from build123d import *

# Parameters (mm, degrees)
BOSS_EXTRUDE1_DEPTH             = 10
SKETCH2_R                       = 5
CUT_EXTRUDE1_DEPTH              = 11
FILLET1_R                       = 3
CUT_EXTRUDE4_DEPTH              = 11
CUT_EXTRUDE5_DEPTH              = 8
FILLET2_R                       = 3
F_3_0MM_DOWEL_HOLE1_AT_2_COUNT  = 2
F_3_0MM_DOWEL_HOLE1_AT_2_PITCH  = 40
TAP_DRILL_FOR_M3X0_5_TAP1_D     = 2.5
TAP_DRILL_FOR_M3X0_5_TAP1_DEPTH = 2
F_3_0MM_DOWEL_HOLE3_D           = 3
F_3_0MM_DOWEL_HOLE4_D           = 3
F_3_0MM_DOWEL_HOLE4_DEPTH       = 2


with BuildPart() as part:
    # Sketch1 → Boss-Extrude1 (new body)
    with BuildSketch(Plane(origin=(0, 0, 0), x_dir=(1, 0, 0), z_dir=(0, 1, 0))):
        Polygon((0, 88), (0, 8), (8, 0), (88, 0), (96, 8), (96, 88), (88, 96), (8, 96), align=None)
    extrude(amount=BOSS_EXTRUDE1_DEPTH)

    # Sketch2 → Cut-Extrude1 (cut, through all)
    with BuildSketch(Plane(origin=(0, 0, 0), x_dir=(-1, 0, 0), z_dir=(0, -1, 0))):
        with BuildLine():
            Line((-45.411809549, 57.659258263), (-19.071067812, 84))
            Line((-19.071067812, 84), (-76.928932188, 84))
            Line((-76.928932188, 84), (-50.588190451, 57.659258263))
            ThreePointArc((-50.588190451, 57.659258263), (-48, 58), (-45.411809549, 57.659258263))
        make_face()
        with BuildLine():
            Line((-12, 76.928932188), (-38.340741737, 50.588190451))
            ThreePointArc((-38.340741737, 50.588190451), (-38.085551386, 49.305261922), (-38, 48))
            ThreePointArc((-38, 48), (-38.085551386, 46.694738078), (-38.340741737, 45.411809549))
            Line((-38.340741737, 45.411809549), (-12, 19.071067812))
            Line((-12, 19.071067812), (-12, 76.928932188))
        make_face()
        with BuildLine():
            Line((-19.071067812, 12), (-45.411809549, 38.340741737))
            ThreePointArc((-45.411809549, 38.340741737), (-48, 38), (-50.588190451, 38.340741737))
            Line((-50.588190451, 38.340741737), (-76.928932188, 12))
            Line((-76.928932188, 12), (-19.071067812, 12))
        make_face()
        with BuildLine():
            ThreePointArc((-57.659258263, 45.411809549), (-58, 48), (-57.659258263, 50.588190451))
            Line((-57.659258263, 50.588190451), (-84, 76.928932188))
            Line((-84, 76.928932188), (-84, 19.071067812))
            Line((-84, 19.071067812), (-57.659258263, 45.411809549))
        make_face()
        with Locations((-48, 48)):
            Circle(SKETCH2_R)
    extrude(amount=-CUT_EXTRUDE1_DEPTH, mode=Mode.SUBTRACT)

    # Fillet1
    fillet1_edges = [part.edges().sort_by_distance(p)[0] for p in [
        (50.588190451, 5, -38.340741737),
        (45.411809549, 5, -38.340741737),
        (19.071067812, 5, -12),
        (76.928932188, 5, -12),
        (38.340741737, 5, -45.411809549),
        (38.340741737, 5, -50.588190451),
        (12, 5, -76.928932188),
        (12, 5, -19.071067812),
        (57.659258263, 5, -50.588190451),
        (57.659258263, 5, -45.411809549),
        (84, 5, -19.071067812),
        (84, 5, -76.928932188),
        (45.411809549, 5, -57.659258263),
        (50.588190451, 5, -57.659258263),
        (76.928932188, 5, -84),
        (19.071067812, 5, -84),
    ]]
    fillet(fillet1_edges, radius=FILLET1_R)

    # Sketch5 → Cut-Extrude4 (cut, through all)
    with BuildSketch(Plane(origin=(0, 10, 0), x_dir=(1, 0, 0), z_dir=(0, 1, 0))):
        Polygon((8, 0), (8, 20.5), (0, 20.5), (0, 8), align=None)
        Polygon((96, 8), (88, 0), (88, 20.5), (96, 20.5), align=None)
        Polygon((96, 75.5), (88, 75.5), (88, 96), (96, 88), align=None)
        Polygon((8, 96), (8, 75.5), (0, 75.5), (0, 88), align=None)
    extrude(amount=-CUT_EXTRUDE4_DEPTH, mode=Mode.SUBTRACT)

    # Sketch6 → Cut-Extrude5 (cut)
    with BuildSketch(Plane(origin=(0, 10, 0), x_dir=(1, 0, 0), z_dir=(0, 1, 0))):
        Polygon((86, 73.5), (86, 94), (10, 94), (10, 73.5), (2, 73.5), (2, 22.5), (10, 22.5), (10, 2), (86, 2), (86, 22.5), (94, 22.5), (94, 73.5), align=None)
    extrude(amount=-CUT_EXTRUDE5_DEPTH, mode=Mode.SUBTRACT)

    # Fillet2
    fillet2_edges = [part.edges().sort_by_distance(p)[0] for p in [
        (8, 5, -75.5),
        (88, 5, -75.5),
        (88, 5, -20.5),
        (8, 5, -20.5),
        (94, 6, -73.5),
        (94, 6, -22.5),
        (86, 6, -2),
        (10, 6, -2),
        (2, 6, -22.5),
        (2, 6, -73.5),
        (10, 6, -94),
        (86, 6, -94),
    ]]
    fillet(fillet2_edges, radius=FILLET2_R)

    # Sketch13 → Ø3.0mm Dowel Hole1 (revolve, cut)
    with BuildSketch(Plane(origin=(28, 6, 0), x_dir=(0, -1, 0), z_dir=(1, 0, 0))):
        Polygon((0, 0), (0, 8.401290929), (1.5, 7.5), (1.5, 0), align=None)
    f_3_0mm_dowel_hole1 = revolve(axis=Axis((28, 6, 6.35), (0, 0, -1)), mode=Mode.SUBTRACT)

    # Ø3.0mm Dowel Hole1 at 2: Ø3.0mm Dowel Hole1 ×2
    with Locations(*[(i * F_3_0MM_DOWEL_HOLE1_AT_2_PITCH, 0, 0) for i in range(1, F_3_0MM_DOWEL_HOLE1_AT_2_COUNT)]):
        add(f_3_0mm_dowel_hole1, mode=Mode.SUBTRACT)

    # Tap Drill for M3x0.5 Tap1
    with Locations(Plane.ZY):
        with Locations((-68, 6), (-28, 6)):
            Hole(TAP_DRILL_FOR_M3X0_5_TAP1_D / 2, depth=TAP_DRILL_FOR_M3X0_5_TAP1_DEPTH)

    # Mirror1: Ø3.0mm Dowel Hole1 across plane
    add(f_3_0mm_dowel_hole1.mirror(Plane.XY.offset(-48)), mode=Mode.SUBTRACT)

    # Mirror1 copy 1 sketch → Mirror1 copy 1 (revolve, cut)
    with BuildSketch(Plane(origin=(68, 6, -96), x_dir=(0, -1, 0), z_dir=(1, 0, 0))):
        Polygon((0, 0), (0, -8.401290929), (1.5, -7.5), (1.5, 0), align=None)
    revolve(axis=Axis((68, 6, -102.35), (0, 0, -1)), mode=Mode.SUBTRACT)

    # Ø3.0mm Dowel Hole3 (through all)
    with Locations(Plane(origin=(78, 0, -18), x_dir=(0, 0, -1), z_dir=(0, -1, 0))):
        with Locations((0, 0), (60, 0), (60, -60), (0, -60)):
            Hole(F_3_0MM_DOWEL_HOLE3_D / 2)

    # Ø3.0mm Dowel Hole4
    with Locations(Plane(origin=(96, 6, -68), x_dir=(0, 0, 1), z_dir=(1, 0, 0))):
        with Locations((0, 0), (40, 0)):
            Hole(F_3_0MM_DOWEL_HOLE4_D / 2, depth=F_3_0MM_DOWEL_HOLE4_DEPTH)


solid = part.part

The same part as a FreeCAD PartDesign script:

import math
import FreeCAD as App
import Part
import Sketcher
Q = App.Units.Quantity


def edges_at(feature, points):
    """Names of the edges that pass closest to the given points."""
    edges = feature.Shape.Edges
    near = lambda p: min(range(len(edges)), key=lambda i: edges[i].distToShape(Part.Vertex(*p))[0])
    return sorted({f"Edge{near(p) + 1}" for p in points})


def add_polygon(sketch, points):
    """Adds a closed chain of lines whose ends are joined by coincident constraints."""
    first, n = sketch.GeometryCount, len(points)
    for a, b in zip(points, points[1:] + points[:1]):
        sketch.addGeometry(Part.LineSegment(App.Vector(*a, 0), App.Vector(*b, 0)), False)
    for i in range(n):
        sketch.addConstraint(Sketcher.Constraint("Coincident", first + i, 2, first + (i + 1) % n, 1))

doc = App.newDocument("Part")
body = doc.addObject("PartDesign::Body", "Body")

sketch1 = body.newObject("Sketcher::SketchObject", "Sketch")
sketch1.AttachmentSupport = (doc.getObject("XZ_Plane"), [""])
sketch1.MapMode = "FlatFace"
add_polygon(sketch1, [(0, -88), (0, -8), (8, 0), (88, 0), (96, -8), (96, -88), (88, -96), (8, -96)])
sketch1.addConstraint([
    Sketcher.Constraint("Vertical", 0),
    Sketcher.Constraint("Horizontal", 2),
    Sketcher.Constraint("Vertical", 4),
    Sketcher.Constraint("Horizontal", 6),
    Sketcher.Constraint("PointOnObject", 0, 2, -2),
    Sketcher.Constraint("PointOnObject", 1, 2, -1),
    Sketcher.Constraint("Perpendicular", 1, 3),
    Sketcher.Constraint("Perpendicular", 3, 5),
    Sketcher.Constraint("Perpendicular", 5, 7),
    Sketcher.Constraint("Horizontal", 0, 2, 3, 2),
    Sketcher.Constraint("Horizontal", 4, 2, 7, 2),
    Sketcher.Constraint("Vertical", 2, 2, 5, 2),
    Sketcher.Constraint("Vertical", 1, 2, 6, 2),
    Sketcher.Constraint("Equal", 6, 0),
    Sketcher.Constraint("DistanceX", 2, 1, 2, 2, Q("80 mm")),
    Sketcher.Constraint("DistanceY", 0, 2, -1, 1, Q("8 mm")),
])
pad1 = body.newObject("PartDesign::Pad", "Pad")
pad1.Profile = sketch1
pad1.Length = 10
pad1.Reversed = True

sketch2 = body.newObject("Sketcher::SketchObject", "Sketch001")
sketch2.AttachmentSupport = (doc.getObject("XZ_Plane"), [""])
sketch2.MapMode = "FlatFace"
sketch2.addGeometry([
    Part.LineSegment(App.Vector(45.4, -57.7, 0), App.Vector(19.1, -84, 0)),
    Part.LineSegment(App.Vector(19.1, -84, 0), App.Vector(76.9, -84, 0)),
    Part.LineSegment(App.Vector(76.9, -84, 0), App.Vector(50.6, -57.7, 0)),
    Part.ArcOfCircle(Part.Circle(App.Vector(48, -48, 0), App.Vector(0, 0, 1), 10), math.radians(-105), math.radians(-75)),
    Part.LineSegment(App.Vector(12, -76.9, 0), App.Vector(38.3, -50.6, 0)),
    Part.ArcOfCircle(Part.Circle(App.Vector(48, -48, 0), App.Vector(0, 0, 1), 10), math.radians(180), math.radians(195)),
    Part.ArcOfCircle(Part.Circle(App.Vector(48, -48, 0), App.Vector(0, 0, 1), 10), math.radians(165), math.radians(180)),
    Part.LineSegment(App.Vector(38.3, -45.4, 0), App.Vector(12, -19.1, 0)),
    Part.LineSegment(App.Vector(12, -19.1, 0), App.Vector(12, -76.9, 0)),
    Part.LineSegment(App.Vector(19.1, -12, 0), App.Vector(45.4, -38.3, 0)),
    Part.ArcOfCircle(Part.Circle(App.Vector(48, -48, 0), App.Vector(0, 0, 1), 10), math.radians(75), math.radians(105)),
    Part.LineSegment(App.Vector(50.6, -38.3, 0), App.Vector(76.9, -12, 0)),
    Part.LineSegment(App.Vector(76.9, -12, 0), App.Vector(19.1, -12, 0)),
    Part.ArcOfCircle(Part.Circle(App.Vector(48, -48, 0), App.Vector(0, 0, 1), 10), math.radians(-15), math.radians(15)),
    Part.LineSegment(App.Vector(57.7, -50.6, 0), App.Vector(84, -76.9, 0)),
    Part.LineSegment(App.Vector(84, -76.9, 0), App.Vector(84, -19.1, 0)),
    Part.LineSegment(App.Vector(84, -19.1, 0), App.Vector(57.7, -45.4, 0)),
    Part.Circle(App.Vector(48, -48, 0), App.Vector(0, 0, 1), 5),
], False)
sketch2.addConstraint([
    Sketcher.Constraint("Coincident", 0, 2, 1, 1),
    Sketcher.Constraint("Coincident", 1, 2, 2, 1),
    Sketcher.Constraint("Coincident", 2, 2, 3, 2),
    Sketcher.Constraint("Coincident", 3, 1, 0, 1),
    Sketcher.Constraint("Coincident", 4, 2, 5, 2),
    Sketcher.Constraint("Tangent", 5, 1, 6, 2),
    Sketcher.Constraint("Coincident", 6, 1, 7, 1),
    Sketcher.Constraint("Coincident", 7, 2, 8, 1),
    Sketcher.Constraint("Coincident", 8, 2, 4, 1),
    Sketcher.Constraint("Coincident", 9, 2, 10, 2),
    Sketcher.Constraint("Coincident", 10, 1, 11, 1),
    Sketcher.Constraint("Coincident", 11, 2, 12, 1),
    Sketcher.Constraint("Coincident", 12, 2, 9, 1),
    Sketcher.Constraint("Coincident", 13, 1, 14, 1),
    Sketcher.Constraint("Coincident", 14, 2, 15, 1),
    Sketcher.Constraint("Coincident", 15, 2, 16, 1),
    Sketcher.Constraint("Coincident", 16, 2, 13, 2),
    Sketcher.Constraint("Horizontal", 1),
    Sketcher.Constraint("Vertical", 8),
    Sketcher.Constraint("Horizontal", 12),
    Sketcher.Constraint("Vertical", 15),
    Sketcher.Constraint("Coincident", 5, 3, 3, 3),
    Sketcher.Constraint("Coincident", 10, 3, 3, 3),
    Sketcher.Constraint("Coincident", 13, 3, 3, 3),
    Sketcher.Constraint("Coincident", 17, 3, 3, 3),
    Sketcher.Constraint("Equal", 3, 5),
    Sketcher.Constraint("Equal", 5, 6),
    Sketcher.Constraint("Equal", 6, 10),
    Sketcher.Constraint("Equal", 10, 13),
    Sketcher.Constraint("Perpendicular", 0, 2),
    Sketcher.Constraint("Perpendicular", 2, 4),
    Sketcher.Constraint("Perpendicular", 4, 7),
    Sketcher.Constraint("Parallel", 7, 9),
    Sketcher.Constraint("Perpendicular", 9, 11),
    Sketcher.Constraint("Perpendicular", 11, 14),
    Sketcher.Constraint("Perpendicular", 14, 16),
    Sketcher.Constraint("Horizontal", 2, 2, 3, 1),
    Sketcher.Constraint("Horizontal", 17, 3, 5, 1),
    Sketcher.Constraint("Horizontal", 9, 2, 10, 1),
    Sketcher.Constraint("Horizontal", 4, 2, 13, 1),
    Sketcher.Constraint("Horizontal", 8, 2, 14, 2),
    Sketcher.Constraint("Horizontal", 7, 2, 15, 2),
    Sketcher.Constraint("Horizontal", 6, 1, 16, 2),
    Sketcher.Constraint("Vertical", 4, 2, 6, 1),
    Sketcher.Constraint("Vertical", 3, 1, 9, 2),
    Sketcher.Constraint("Vertical", 1, 2, 11, 2),
    Sketcher.Constraint("Equal", 12, 8),
    Sketcher.Constraint("Equal", 2, 4),
    Sketcher.Constraint("Diameter", 17, Q("10 mm")),
    Sketcher.Constraint("Radius", 3, Q("10 mm")),
    Sketcher.Constraint("DistanceX", -1, 1, 3, 3, Q("48 mm")),
    Sketcher.Constraint("DistanceY", 3, 3, -1, 1, Q("48 mm")),
    Sketcher.Constraint("DistanceY", 0, 2, -1, 1, Q("84 mm")),
    Sketcher.Constraint("DistanceX", 1, 1, 1, 2, Q("57.857864 mm")),
])
pocket1 = body.newObject("PartDesign::Pocket", "Pocket")
pocket1.Profile = sketch2
pocket1.Type = "ThroughAll"
doc.recompute()

fillet = body.newObject("PartDesign::Fillet", "Fillet")
fillet.Base = (pocket1, edges_at(pocket1, [
    (50.588, 5, -38.341),
    (45.412, 5, -38.341),
    (19.071, 5, -12),
    (76.929, 5, -12),
    (38.341, 5, -45.412),
    (38.341, 5, -50.588),
    (12, 5, -76.929),
    (12, 5, -19.071),
    (57.659, 5, -50.588),
    (57.659, 5, -45.412),
    (84, 5, -19.071),
    (84, 5, -76.929),
    (45.412, 5, -57.659),
    (50.588, 5, -57.659),
    (76.929, 5, -84),
    (19.071, 5, -84),
]))
fillet.Radius = 3

sketch3 = body.newObject("Sketcher::SketchObject", "Sketch002")
sketch3.AttachmentSupport = (doc.getObject("XZ_Plane"), [""])
sketch3.MapMode = "FlatFace"
sketch3.AttachmentOffset = App.Placement(App.Vector(0, 0, -10), App.Rotation())
add_polygon(sketch3, [(8, 0), (8, -20), (0, -20), (0, -8)])
add_polygon(sketch3, [(88, 0), (96, -8), (96, -20), (88, -20)])
add_polygon(sketch3, [(88, -76), (96, -76), (96, -88), (88, -96)])
add_polygon(sketch3, [(8, -76), (8, -96), (0, -88), (0, -76)])
sketch3.addConstraint([
    Sketcher.Constraint("Vertical", 0),
    Sketcher.Constraint("Horizontal", 1),
    Sketcher.Constraint("Vertical", 2),
    Sketcher.Constraint("Vertical", 5),
    Sketcher.Constraint("Horizontal", 6),
    Sketcher.Constraint("Vertical", 7),
    Sketcher.Constraint("Horizontal", 8),
    Sketcher.Constraint("Vertical", 9),
    Sketcher.Constraint("Vertical", 11),
    Sketcher.Constraint("Vertical", 12),
    Sketcher.Constraint("Vertical", 14),
    Sketcher.Constraint("Horizontal", 15),
    Sketcher.Constraint("PointOnObject", 1, 2, -2),
    Sketcher.Constraint("PointOnObject", 3, 2, -1),
    Sketcher.Constraint("PointOnObject", 7, 2, -1),
    Sketcher.Constraint("PointOnObject", 13, 2, -2),
    Sketcher.Constraint("Perpendicular", 3, 4),
    Sketcher.Constraint("Perpendicular", 4, 10),
    Sketcher.Constraint("Perpendicular", 10, 13),
    Sketcher.Constraint("Horizontal", 2, 2, 4, 2),
    Sketcher.Constraint("Horizontal", 1, 2, 5, 2),
    Sketcher.Constraint("Horizontal", 10, 2, 12, 2),
    Sketcher.Constraint("Horizontal", 9, 2, 13, 2),
    Sketcher.Constraint("Horizontal", 11, 2, 14, 2),
    Sketcher.Constraint("Vertical", 5, 2, 8, 2),
    Sketcher.Constraint("Vertical", 7, 2, 10, 2),
    Sketcher.Constraint("Vertical", 3, 2, 12, 2),
    Sketcher.Constraint("Equal", 5, 9),
    Sketcher.Constraint("DistanceX", 1, 2, 1, 1, Q("8 mm")),
    Sketcher.Constraint("DistanceY", 0, 2, 0, 1, Q("20.5 mm")),
    Sketcher.Constraint("DistanceX", -1, 1, 4, 2, Q("96 mm")),
    Sketcher.Constraint("DistanceY", 9, 2, -1, 1, Q("88 mm")),
])
pocket2 = body.newObject("PartDesign::Pocket", "Pocket001")
pocket2.Profile = sketch3
pocket2.Type = "ThroughAll"
pocket2.Reversed = True

sketch4 = body.newObject("Sketcher::SketchObject", "Sketch003")
sketch4.AttachmentSupport = (doc.getObject("XZ_Plane"), [""])
sketch4.MapMode = "FlatFace"
sketch4.AttachmentOffset = App.Placement(App.Vector(0, 0, -10), App.Rotation())
add_polygon(sketch4, [(86, -74), (86, -94), (10, -94), (10, -74), (2, -74), (2, -22), (10, -22), (10, -2), (86, -2), (86, -22), (94, -22), (94, -74)])
sketch4.addConstraint([
    Sketcher.Constraint("Vertical", 0),
    Sketcher.Constraint("Horizontal", 1),
    Sketcher.Constraint("Vertical", 2),
    Sketcher.Constraint("Horizontal", 3),
    Sketcher.Constraint("Vertical", 4),
    Sketcher.Constraint("Horizontal", 5),
    Sketcher.Constraint("Vertical", 6),
    Sketcher.Constraint("Horizontal", 7),
    Sketcher.Constraint("Vertical", 8),
    Sketcher.Constraint("Horizontal", 9),
    Sketcher.Constraint("Vertical", 10),
    Sketcher.Constraint("Horizontal", 11),
    Sketcher.Constraint("Horizontal", 5, 2, 8, 2),
    Sketcher.Constraint("Horizontal", 3, 2, 10, 2),
    Sketcher.Constraint("Vertical", 2, 2, 5, 2),
    Sketcher.Constraint("Vertical", 0, 2, 7, 2),
    Sketcher.Constraint("Equal", 5, 9),
    Sketcher.Constraint("Equal", 2, 6),
    Sketcher.Constraint("DistanceX", 1, 2, 1, 1, Q("76 mm")),
    Sketcher.Constraint("DistanceX", 3, 2, 3, 1, Q("8 mm")),
    Sketcher.Constraint("DistanceY", 4, 1, 4, 2, Q("51 mm")),
    Sketcher.Constraint("DistanceY", 0, 2, 0, 1, Q("20.5 mm")),
    Sketcher.Constraint("DistanceX", -1, 1, 0, 2, Q("86 mm")),
    Sketcher.Constraint("DistanceY", 0, 2, -1, 1, Q("94 mm")),
])
pocket3 = body.newObject("PartDesign::Pocket", "Pocket002")
pocket3.Profile = sketch4
pocket3.Length = 8
pocket3.Reversed = True
doc.recompute()

fillet2 = body.newObject("PartDesign::Fillet", "Fillet001")
fillet2.Base = (pocket3, edges_at(pocket3, [
    (8, 5, -75.5),
    (88, 5, -75.5),
    (88, 5, -20.5),
    (8, 5, -20.5),
    (94, 6, -73.5),
    (94, 6, -22.5),
    (86, 6, -2),
    (10, 6, -2),
    (2, 6, -22.5),
    (2, 6, -73.5),
    (10, 6, -94),
    (86, 6, -94),
]))
fillet2.Radius = 3

sketch5 = body.newObject("Sketcher::SketchObject", "Sketch004")
sketch5.AttachmentSupport = (doc.getObject("YZ_Plane"), [""])
sketch5.MapMode = "FlatFace"
sketch5.AttachmentOffset = App.Placement(App.Vector(0, 0, 28), App.Rotation())
add_polygon(sketch5, [(6, -8.4), (6, 0), (4.5, 0), (4.5, -7.5)])
sketch5.addGeometry(Part.LineSegment(App.Vector(6, 0, 0), App.Vector(6, -8.4, 0)), True)
sketch5.addConstraint([
    Sketcher.Constraint("Vertical", 0),
    Sketcher.Constraint("Horizontal", 1),
    Sketcher.Constraint("Vertical", 2),
    Sketcher.Constraint("Vertical", 4),
    Sketcher.Constraint("Coincident", 4, 1, 0, 2),
    Sketcher.Constraint("PointOnObject", 0, 2, -1),
    Sketcher.Constraint("Equal", 0, 4),
    Sketcher.Constraint("Angle", 3, Q("-31 deg")),
    Sketcher.Constraint("DistanceX", 1, 2, 1, 1, Q("1.5 mm")),
    Sketcher.Constraint("DistanceY", 2, 2, 2, 1, Q("7.5 mm")),
    Sketcher.Constraint("DistanceX", -1, 1, 0, 2, Q("6 mm")),
])
groove = body.newObject("PartDesign::Groove", "Groove")
groove.Profile = sketch5
groove.ReferenceAxis = (sketch5, ["Axis0"])
groove.Angle = 360
doc.recompute()

linearpattern = body.newObject("PartDesign::LinearPattern", "LinearPattern")
linearpattern.Originals = [groove]
linearpattern.Direction = (doc.getObject("X_Axis"), [""])
linearpattern.Mode = "offset"
linearpattern.Offset = 40
linearpattern.Occurrences = 2
body.Tip = linearpattern

sketch6 = body.newObject("Sketcher::SketchObject", "Sketch005")
sketch6.AttachmentSupport = (doc.getObject("YZ_Plane"), [""])
sketch6.MapMode = "FlatFace"
sketch6.addGeometry([
    Part.Circle(App.Vector(6, -68, 0), App.Vector(0, 0, 1), 1.2),
    Part.Circle(App.Vector(6, -28, 0), App.Vector(0, 0, 1), 1.2),
], False)
sketch6.addConstraint([
    Sketcher.Constraint("Equal", 0, 1),
    Sketcher.Constraint("Vertical", 0, 3, 1, 3),
    Sketcher.Constraint("Diameter", 0, Q("2.5 mm")),
    Sketcher.Constraint("DistanceX", -1, 1, 0, 3, Q("6 mm")),
    Sketcher.Constraint("DistanceY", 0, 3, -1, 1, Q("68 mm")),
    Sketcher.Constraint("DistanceY", 1, 3, -1, 1, Q("28 mm")),
])
doc.recompute()
hole = body.newObject("PartDesign::Hole", "Hole")
hole.Profile = sketch6
hole.ThreadType = "None"
hole.Diameter = 2.5
hole.DepthType = "Dimension"
hole.Depth = 2
hole.DrillPoint = "Flat"
hole.Reversed = True
doc.recompute()

datumplane = body.newObject("PartDesign::Plane", "DatumPlane")
datumplane.AttachmentSupport = (doc.getObject("XY_Plane"), [""])
datumplane.MapMode = "FlatFace"
datumplane.AttachmentOffset = App.Placement(App.Vector(0, 0, -48), App.Rotation())
mirrored = body.newObject("PartDesign::Mirrored", "Mirrored")
mirrored.Originals = [groove]
mirrored.MirrorPlane = (datumplane, [""])
body.Tip = mirrored

sketch7 = body.newObject("Sketcher::SketchObject", "Sketch006")
sketch7.AttachmentSupport = (doc.getObject("YZ_Plane"), [""])
sketch7.MapMode = "FlatFace"
sketch7.AttachmentOffset = App.Placement(App.Vector(0, 0, 68), App.Rotation())
add_polygon(sketch7, [(6, -96), (6, -87.6), (4.5, -88.5), (4.5, -96)])
sketch7.addGeometry(Part.LineSegment(App.Vector(6, -87.6, 0), App.Vector(6, -96, 0)), True)
sketch7.addConstraint([
    Sketcher.Constraint("Vertical", 0),
    Sketcher.Constraint("Vertical", 2),
    Sketcher.Constraint("Horizontal", 3),
    Sketcher.Constraint("Vertical", 4),
    Sketcher.Constraint("Coincident", 4, 1, 0, 2),
    Sketcher.Constraint("Horizontal", 2, 2, 4, 2),
    Sketcher.Constraint("Angle", 1, Q("-149 deg")),
    Sketcher.Constraint("DistanceX", 3, 1, 3, 2, Q("1.5 mm")),
    Sketcher.Constraint("DistanceY", 2, 2, 2, 1, Q("7.5 mm")),
    Sketcher.Constraint("DistanceX", -1, 1, 0, 2, Q("6 mm")),
    Sketcher.Constraint("DistanceY", 2, 2, -1, 1, Q("96 mm")),
])
groove2 = body.newObject("PartDesign::Groove", "Groove001")
groove2.Profile = sketch7
groove2.ReferenceAxis = (sketch7, ["Axis0"])
groove2.Angle = 360

sketch8 = body.newObject("Sketcher::SketchObject", "Sketch007")
sketch8.AttachmentSupport = (doc.getObject("XZ_Plane"), [""])
sketch8.MapMode = "FlatFace"
sketch8.addGeometry([
    Part.Circle(App.Vector(78, -18, 0), App.Vector(0, 0, 1), 1.5),
    Part.Circle(App.Vector(78, -78, 0), App.Vector(0, 0, 1), 1.5),
    Part.Circle(App.Vector(18, -78, 0), App.Vector(0, 0, 1), 1.5),
    Part.Circle(App.Vector(18, -18, 0), App.Vector(0, 0, 1), 1.5),
], False)
sketch8.addConstraint([
    Sketcher.Constraint("Equal", 0, 1),
    Sketcher.Constraint("Equal", 1, 2),
    Sketcher.Constraint("Equal", 2, 3),
    Sketcher.Constraint("Horizontal", 1, 3, 2, 3),
    Sketcher.Constraint("Horizontal", 0, 3, 3, 3),
    Sketcher.Constraint("Vertical", 0, 3, 1, 3),
    Sketcher.Constraint("Vertical", 2, 3, 3, 3),
    Sketcher.Constraint("Diameter", 0, Q("3 mm")),
    Sketcher.Constraint("DistanceX", -1, 1, 0, 3, Q("78 mm")),
    Sketcher.Constraint("DistanceY", 0, 3, -1, 1, Q("18 mm")),
    Sketcher.Constraint("DistanceY", 1, 3, -1, 1, Q("78 mm")),
    Sketcher.Constraint("DistanceX", -1, 1, 2, 3, Q("18 mm")),
])
doc.recompute()
hole2 = body.newObject("PartDesign::Hole", "Hole001")
hole2.Profile = sketch8
hole2.ThreadType = "None"
hole2.Diameter = 3
hole2.DepthType = "ThroughAll"

sketch9 = body.newObject("Sketcher::SketchObject", "Sketch008")
sketch9.AttachmentSupport = (doc.getObject("YZ_Plane"), [""])
sketch9.MapMode = "FlatFace"
sketch9.AttachmentOffset = App.Placement(App.Vector(0, 0, 96), App.Rotation())
sketch9.addGeometry([
    Part.Circle(App.Vector(6, -68, 0), App.Vector(0, 0, 1), 1.5),
    Part.Circle(App.Vector(6, -28, 0), App.Vector(0, 0, 1), 1.5),
], False)
sketch9.addConstraint([
    Sketcher.Constraint("Equal", 0, 1),
    Sketcher.Constraint("Vertical", 0, 3, 1, 3),
    Sketcher.Constraint("Diameter", 0, Q("3 mm")),
    Sketcher.Constraint("DistanceX", -1, 1, 0, 3, Q("6 mm")),
    Sketcher.Constraint("DistanceY", 0, 3, -1, 1, Q("68 mm")),
    Sketcher.Constraint("DistanceY", 1, 3, -1, 1, Q("28 mm")),
])
doc.recompute()
hole3 = body.newObject("PartDesign::Hole", "Hole002")
hole3.Profile = sketch9
hole3.ThreadType = "None"
hole3.Diameter = 3
hole3.DepthType = "Dimension"
hole3.Depth = 2
hole3.DrillPoint = "Flat"

doc.recompute()
